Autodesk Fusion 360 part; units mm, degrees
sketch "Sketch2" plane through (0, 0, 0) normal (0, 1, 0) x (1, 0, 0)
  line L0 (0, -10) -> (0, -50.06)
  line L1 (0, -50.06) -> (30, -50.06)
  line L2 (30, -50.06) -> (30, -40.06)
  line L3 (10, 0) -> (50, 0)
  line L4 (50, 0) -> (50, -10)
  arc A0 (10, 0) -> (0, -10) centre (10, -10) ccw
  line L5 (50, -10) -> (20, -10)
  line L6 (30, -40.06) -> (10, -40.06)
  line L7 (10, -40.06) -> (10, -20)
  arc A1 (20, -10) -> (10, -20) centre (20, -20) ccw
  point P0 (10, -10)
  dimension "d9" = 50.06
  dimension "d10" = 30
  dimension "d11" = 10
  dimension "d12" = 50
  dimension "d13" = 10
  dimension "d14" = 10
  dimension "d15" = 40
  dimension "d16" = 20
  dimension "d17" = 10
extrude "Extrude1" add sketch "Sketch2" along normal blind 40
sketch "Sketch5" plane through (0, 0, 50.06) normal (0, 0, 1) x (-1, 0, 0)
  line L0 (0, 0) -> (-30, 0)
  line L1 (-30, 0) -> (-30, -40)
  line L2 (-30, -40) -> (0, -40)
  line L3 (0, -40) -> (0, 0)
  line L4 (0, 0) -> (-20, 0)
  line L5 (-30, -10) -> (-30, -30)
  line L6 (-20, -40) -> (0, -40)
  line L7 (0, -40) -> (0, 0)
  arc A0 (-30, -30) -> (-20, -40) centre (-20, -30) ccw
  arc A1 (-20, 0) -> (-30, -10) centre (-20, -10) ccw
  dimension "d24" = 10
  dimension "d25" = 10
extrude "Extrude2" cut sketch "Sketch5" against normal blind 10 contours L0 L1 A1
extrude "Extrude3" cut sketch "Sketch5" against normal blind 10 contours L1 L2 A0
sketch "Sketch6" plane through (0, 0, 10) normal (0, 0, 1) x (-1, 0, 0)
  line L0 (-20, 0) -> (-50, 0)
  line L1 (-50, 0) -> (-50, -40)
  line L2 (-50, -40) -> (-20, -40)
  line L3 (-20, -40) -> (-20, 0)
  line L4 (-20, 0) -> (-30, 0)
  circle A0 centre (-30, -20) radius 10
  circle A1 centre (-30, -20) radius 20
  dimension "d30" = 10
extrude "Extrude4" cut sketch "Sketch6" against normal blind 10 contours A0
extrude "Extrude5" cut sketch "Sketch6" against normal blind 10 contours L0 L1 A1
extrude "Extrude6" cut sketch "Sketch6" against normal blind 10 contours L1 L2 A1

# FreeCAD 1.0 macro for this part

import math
import FreeCAD as App
import Part
import Sketcher
Q = App.Units.Quantity

doc = App.newDocument("Part")
body = doc.addObject("PartDesign::Body", "Body")

# Sketch on XZ plane
sketch1 = body.newObject("Sketcher::SketchObject", "Sketch")
sketch1.AttachmentSupport = (doc.getObject("XZ_Plane"), [""])
sketch1.MapMode = "FlatFace"
sketch1.addGeometry(Part.ArcOfCircle(Part.Circle(App.Vector(10, 10, 0), App.Vector(0, 0, 1), 10), math.radians(180), math.radians(270)), False)
sketch1.addGeometry(Part.LineSegment(App.Vector(0, 10, 0), App.Vector(0, 50, 0)), False)
sketch1.addGeometry(Part.LineSegment(App.Vector(0, 50, 0), App.Vector(30, 50, 0)), False)
sketch1.addGeometry(Part.LineSegment(App.Vector(30, 50, 0), App.Vector(30, 40, 0)), False)
sketch1.addGeometry(Part.LineSegment(App.Vector(30, 40, 0), App.Vector(10, 40, 0)), False)
sketch1.addGeometry(Part.LineSegment(App.Vector(10, 40, 0), App.Vector(10, 20, 0)), False)
sketch1.addGeometry(Part.ArcOfCircle(Part.Circle(App.Vector(20, 20, 0), App.Vector(0, 0, 1), 10), math.radians(180), math.radians(270)), False)
sketch1.addGeometry(Part.LineSegment(App.Vector(20, 10, 0), App.Vector(50, 10, 0)), False)
sketch1.addGeometry(Part.LineSegment(App.Vector(50, 10, 0), App.Vector(50, 0, 0)), False)
sketch1.addGeometry(Part.LineSegment(App.Vector(50, 0, 0), App.Vector(10, 0, 0)), False)
sketch1.addConstraint(Sketcher.Constraint("Tangent", 0, 1, 1, 1))
sketch1.addConstraint(Sketcher.Constraint("Coincident", 1, 2, 2, 1))
sketch1.addConstraint(Sketcher.Constraint("Coincident", 2, 2, 3, 1))
sketch1.addConstraint(Sketcher.Constraint("Coincident", 3, 2, 4, 1))
sketch1.addConstraint(Sketcher.Constraint("Coincident", 4, 2, 5, 1))
sketch1.addConstraint(Sketcher.Constraint("Tangent", 5, 2, 6, 1))
sketch1.addConstraint(Sketcher.Constraint("Tangent", 6, 2, 7, 1))
sketch1.addConstraint(Sketcher.Constraint("Coincident", 7, 2, 8, 1))
sketch1.addConstraint(Sketcher.Constraint("Coincident", 8, 2, 9, 1))
sketch1.addConstraint(Sketcher.Constraint("Tangent", 9, 2, 0, 2))
sketch1.addConstraint(Sketcher.Constraint("Vertical", 1))
sketch1.addConstraint(Sketcher.Constraint("Horizontal", 2))
sketch1.addConstraint(Sketcher.Constraint("Vertical", 3))
sketch1.addConstraint(Sketcher.Constraint("Horizontal", 4))
sketch1.addConstraint(Sketcher.Constraint("Vertical", 5))
sketch1.addConstraint(Sketcher.Constraint("Horizontal", 7))
sketch1.addConstraint(Sketcher.Constraint("Vertical", 8))
sketch1.addConstraint(Sketcher.Constraint("Horizontal", 9))
sketch1.addConstraint(Sketcher.Constraint("Equal", 0, 6))
sketch1.addConstraint(Sketcher.Constraint("PointOnObject", 0, 1, -2))
sketch1.addConstraint(Sketcher.Constraint("PointOnObject", 8, 2, -1))
sketch1.addConstraint(Sketcher.Constraint("Horizontal", 0, 1, 6, 2))
sketch1.addConstraint(Sketcher.Constraint("Vertical", 0, 3, 4, 2))
sketch1.addConstraint(Sketcher.Constraint("Equal", 2, 7))
sketch1.addConstraint(Sketcher.Constraint("Equal", 3, 8))
sketch1.addConstraint(Sketcher.Constraint("Radius", 0, Q("10 mm")))
sketch1.addConstraint(Sketcher.Constraint("DistanceX", 2, 1, 2, 2, Q("30 mm")))
sketch1.addConstraint(Sketcher.Constraint("DistanceY", -1, 1, 1, 2, Q("50.06 mm")))
pad1 = body.newObject("PartDesign::Pad", "Pad")
pad1.Profile = sketch1
pad1.Length = 40
pad1.Reversed = True

# Sketch on XY plane
sketch2 = body.newObject("Sketcher::SketchObject", "Sketch001")
sketch2.AttachmentSupport = (doc.getObject("XY_Plane"), [""])
sketch2.MapMode = "FlatFace"
sketch2.AttachmentOffset = App.Placement(App.Vector(0, 0, 50.06), App.Rotation())
sketch2.addGeometry(Part.ArcOfCircle(Part.Circle(App.Vector(20, 10, 0), App.Vector(0, 0, 1), 10), math.radians(-90), math.radians(0)), False)
sketch2.addGeometry(Part.LineSegment(App.Vector(20, 0, 0), App.Vector(30, 0, 0)), False)
sketch2.addGeometry(Part.LineSegment(App.Vector(30, 0, 0), App.Vector(30, 10, 0)), False)
sketch2.addConstraint(Sketcher.Constraint("Tangent", 0, 1, 1, 1))
sketch2.addConstraint(Sketcher.Constraint("Coincident", 1, 2, 2, 1))
sketch2.addConstraint(Sketcher.Constraint("Tangent", 2, 2, 0, 2))
sketch2.addConstraint(Sketcher.Constraint("Horizontal", 1))
sketch2.addConstraint(Sketcher.Constraint("Vertical", 2))
sketch2.addConstraint(Sketcher.Constraint("PointOnObject", 0, 1, -1))
sketch2.addConstraint(Sketcher.Constraint("Radius", 0, Q("10 mm")))
sketch2.addConstraint(Sketcher.Constraint("DistanceX", -1, 1, 0, 3, Q("20 mm")))
pocket1 = body.newObject("PartDesign::Pocket", "Pocket")
pocket1.Profile = sketch2
pocket1.Length = 10

# Sketch on XY plane
sketch3 = body.newObject("Sketcher::SketchObject", "Sketch002")
sketch3.AttachmentSupport = (doc.getObject("XY_Plane"), [""])
sketch3.MapMode = "FlatFace"
sketch3.AttachmentOffset = App.Placement(App.Vector(0, 0, 50.06), App.Rotation())
sketch3.addGeometry(Part.LineSegment(App.Vector(30, 40, 0), App.Vector(20, 40, 0)), False)
sketch3.addGeometry(Part.ArcOfCircle(Part.Circle(App.Vector(20, 30, 0), App.Vector(0, 0, 1), 10), math.radians(0), math.radians(90)), False)
sketch3.addGeometry(Part.LineSegment(App.Vector(30, 30, 0), App.Vector(30, 40, 0)), False)
sketch3.addConstraint(Sketcher.Constraint("Tangent", 0, 2, 1, 2))
sketch3.addConstraint(Sketcher.Constraint("Tangent", 1, 1, 2, 1))
sketch3.addConstraint(Sketcher.Constraint("Coincident", 2, 2, 0, 1))
sketch3.addConstraint(Sketcher.Constraint("Horizontal", 0))
sketch3.addConstraint(Sketcher.Constraint("Vertical", 2))
sketch3.addConstraint(Sketcher.Constraint("Radius", 1, Q("10 mm")))
sketch3.addConstraint(Sketcher.Constraint("DistanceX", -1, 1, 1, 3, Q("20 mm")))
sketch3.addConstraint(Sketcher.Constraint("DistanceY", -1, 1, 1, 3, Q("30 mm")))
pocket2 = body.newObject("PartDesign::Pocket", "Pocket001")
pocket2.Profile = sketch3
pocket2.Length = 10

# Sketch on XY plane
sketch4 = body.newObject("Sketcher::SketchObject", "Sketch003")
sketch4.AttachmentSupport = (doc.getObject("XY_Plane"), [""])
sketch4.MapMode = "FlatFace"
sketch4.AttachmentOffset = App.Placement(App.Vector(0, 0, 10), App.Rotation())
sketch4.addGeometry(Part.Circle(App.Vector(30, 20, 0), App.Vector(0, 0, 1), 10), False)
sketch4.addConstraint(Sketcher.Constraint("Diameter", 0, Q("20 mm")))
sketch4.addConstraint(Sketcher.Constraint("DistanceX", -1, 1, 0, 3, Q("30 mm")))
sketch4.addConstraint(Sketcher.Constraint("DistanceY", -1, 1, 0, 3, Q("20 mm")))
pocket3 = body.newObject("PartDesign::Pocket", "Pocket002")
pocket3.Profile = sketch4
pocket3.Length = 10

# Sketch on XY plane
sketch5 = body.newObject("Sketcher::SketchObject", "Sketch004")
sketch5.AttachmentSupport = (doc.getObject("XY_Plane"), [""])
sketch5.MapMode = "FlatFace"
sketch5.AttachmentOffset = App.Placement(App.Vector(0, 0, 10), App.Rotation())
sketch5.addGeometry(Part.ArcOfCircle(Part.Circle(App.Vector(30, 20, 0), App.Vector(0, 0, 1), 20), math.radians(-90), math.radians(0)), False)
sketch5.addGeometry(Part.LineSegment(App.Vector(30, 0, 0), App.Vector(50, 0, 0)), False)
sketch5.addGeometry(Part.LineSegment(App.Vector(50, 0, 0), App.Vector(50, 20, 0)), False)
sketch5.addConstraint(Sketcher.Constraint("Tangent", 0, 1, 1, 1))
sketch5.addConstraint(Sketcher.Constraint("Coincident", 1, 2, 2, 1))
sketch5.addConstraint(Sketcher.Constraint("Tangent", 2, 2, 0, 2))
sketch5.addConstraint(Sketcher.Constraint("Horizontal", 1))
sketch5.addConstraint(Sketcher.Constraint("Vertical", 2))
sketch5.addConstraint(Sketcher.Constraint("PointOnObject", 0, 1, -1))
sketch5.addConstraint(Sketcher.Constraint("Radius", 0, Q("20 mm")))
sketch5.addConstraint(Sketcher.Constraint("DistanceX", -1, 1, 0, 3, Q("30 mm")))
pocket4 = body.newObject("PartDesign::Pocket", "Pocket003")
pocket4.Profile = sketch5
pocket4.Length = 10

# Sketch on XY plane
sketch6 = body.newObject("Sketcher::SketchObject", "Sketch005")
sketch6.AttachmentSupport = (doc.getObject("XY_Plane"), [""])
sketch6.MapMode = "FlatFace"
sketch6.AttachmentOffset = App.Placement(App.Vector(0, 0, 10), App.Rotation())
sketch6.addGeometry(Part.ArcOfCircle(Part.Circle(App.Vector(30, 20, 0), App.Vector(0, 0, 1), 20), math.radians(0), math.radians(90)), False)
sketch6.addGeometry(Part.LineSegment(App.Vector(50, 20, 0), App.Vector(50, 40, 0)), False)
sketch6.addGeometry(Part.LineSegment(App.Vector(50, 40, 0), App.Vector(30, 40, 0)), False)
sketch6.addConstraint(Sketcher.Constraint("Tangent", 0, 1, 1, 1))
sketch6.addConstraint(Sketcher.Constraint("Coincident", 1, 2, 2, 1))
sketch6.addConstraint(Sketcher.Constraint("Tangent", 2, 2, 0, 2))
sketch6.addConstraint(Sketcher.Constraint("Vertical", 1))
sketch6.addConstraint(Sketcher.Constraint("Horizontal", 2))
sketch6.addConstraint(Sketcher.Constraint("Radius", 0, Q("20 mm")))
sketch6.addConstraint(Sketcher.Constraint("DistanceX", -1, 1, 0, 3, Q("30 mm")))
sketch6.addConstraint(Sketcher.Constraint("DistanceY", -1, 1, 0, 3, Q("20 mm")))
pocket5 = body.newObject("PartDesign::Pocket", "Pocket004")
pocket5.Profile = sketch6
pocket5.Length = 10

doc.recompute()
